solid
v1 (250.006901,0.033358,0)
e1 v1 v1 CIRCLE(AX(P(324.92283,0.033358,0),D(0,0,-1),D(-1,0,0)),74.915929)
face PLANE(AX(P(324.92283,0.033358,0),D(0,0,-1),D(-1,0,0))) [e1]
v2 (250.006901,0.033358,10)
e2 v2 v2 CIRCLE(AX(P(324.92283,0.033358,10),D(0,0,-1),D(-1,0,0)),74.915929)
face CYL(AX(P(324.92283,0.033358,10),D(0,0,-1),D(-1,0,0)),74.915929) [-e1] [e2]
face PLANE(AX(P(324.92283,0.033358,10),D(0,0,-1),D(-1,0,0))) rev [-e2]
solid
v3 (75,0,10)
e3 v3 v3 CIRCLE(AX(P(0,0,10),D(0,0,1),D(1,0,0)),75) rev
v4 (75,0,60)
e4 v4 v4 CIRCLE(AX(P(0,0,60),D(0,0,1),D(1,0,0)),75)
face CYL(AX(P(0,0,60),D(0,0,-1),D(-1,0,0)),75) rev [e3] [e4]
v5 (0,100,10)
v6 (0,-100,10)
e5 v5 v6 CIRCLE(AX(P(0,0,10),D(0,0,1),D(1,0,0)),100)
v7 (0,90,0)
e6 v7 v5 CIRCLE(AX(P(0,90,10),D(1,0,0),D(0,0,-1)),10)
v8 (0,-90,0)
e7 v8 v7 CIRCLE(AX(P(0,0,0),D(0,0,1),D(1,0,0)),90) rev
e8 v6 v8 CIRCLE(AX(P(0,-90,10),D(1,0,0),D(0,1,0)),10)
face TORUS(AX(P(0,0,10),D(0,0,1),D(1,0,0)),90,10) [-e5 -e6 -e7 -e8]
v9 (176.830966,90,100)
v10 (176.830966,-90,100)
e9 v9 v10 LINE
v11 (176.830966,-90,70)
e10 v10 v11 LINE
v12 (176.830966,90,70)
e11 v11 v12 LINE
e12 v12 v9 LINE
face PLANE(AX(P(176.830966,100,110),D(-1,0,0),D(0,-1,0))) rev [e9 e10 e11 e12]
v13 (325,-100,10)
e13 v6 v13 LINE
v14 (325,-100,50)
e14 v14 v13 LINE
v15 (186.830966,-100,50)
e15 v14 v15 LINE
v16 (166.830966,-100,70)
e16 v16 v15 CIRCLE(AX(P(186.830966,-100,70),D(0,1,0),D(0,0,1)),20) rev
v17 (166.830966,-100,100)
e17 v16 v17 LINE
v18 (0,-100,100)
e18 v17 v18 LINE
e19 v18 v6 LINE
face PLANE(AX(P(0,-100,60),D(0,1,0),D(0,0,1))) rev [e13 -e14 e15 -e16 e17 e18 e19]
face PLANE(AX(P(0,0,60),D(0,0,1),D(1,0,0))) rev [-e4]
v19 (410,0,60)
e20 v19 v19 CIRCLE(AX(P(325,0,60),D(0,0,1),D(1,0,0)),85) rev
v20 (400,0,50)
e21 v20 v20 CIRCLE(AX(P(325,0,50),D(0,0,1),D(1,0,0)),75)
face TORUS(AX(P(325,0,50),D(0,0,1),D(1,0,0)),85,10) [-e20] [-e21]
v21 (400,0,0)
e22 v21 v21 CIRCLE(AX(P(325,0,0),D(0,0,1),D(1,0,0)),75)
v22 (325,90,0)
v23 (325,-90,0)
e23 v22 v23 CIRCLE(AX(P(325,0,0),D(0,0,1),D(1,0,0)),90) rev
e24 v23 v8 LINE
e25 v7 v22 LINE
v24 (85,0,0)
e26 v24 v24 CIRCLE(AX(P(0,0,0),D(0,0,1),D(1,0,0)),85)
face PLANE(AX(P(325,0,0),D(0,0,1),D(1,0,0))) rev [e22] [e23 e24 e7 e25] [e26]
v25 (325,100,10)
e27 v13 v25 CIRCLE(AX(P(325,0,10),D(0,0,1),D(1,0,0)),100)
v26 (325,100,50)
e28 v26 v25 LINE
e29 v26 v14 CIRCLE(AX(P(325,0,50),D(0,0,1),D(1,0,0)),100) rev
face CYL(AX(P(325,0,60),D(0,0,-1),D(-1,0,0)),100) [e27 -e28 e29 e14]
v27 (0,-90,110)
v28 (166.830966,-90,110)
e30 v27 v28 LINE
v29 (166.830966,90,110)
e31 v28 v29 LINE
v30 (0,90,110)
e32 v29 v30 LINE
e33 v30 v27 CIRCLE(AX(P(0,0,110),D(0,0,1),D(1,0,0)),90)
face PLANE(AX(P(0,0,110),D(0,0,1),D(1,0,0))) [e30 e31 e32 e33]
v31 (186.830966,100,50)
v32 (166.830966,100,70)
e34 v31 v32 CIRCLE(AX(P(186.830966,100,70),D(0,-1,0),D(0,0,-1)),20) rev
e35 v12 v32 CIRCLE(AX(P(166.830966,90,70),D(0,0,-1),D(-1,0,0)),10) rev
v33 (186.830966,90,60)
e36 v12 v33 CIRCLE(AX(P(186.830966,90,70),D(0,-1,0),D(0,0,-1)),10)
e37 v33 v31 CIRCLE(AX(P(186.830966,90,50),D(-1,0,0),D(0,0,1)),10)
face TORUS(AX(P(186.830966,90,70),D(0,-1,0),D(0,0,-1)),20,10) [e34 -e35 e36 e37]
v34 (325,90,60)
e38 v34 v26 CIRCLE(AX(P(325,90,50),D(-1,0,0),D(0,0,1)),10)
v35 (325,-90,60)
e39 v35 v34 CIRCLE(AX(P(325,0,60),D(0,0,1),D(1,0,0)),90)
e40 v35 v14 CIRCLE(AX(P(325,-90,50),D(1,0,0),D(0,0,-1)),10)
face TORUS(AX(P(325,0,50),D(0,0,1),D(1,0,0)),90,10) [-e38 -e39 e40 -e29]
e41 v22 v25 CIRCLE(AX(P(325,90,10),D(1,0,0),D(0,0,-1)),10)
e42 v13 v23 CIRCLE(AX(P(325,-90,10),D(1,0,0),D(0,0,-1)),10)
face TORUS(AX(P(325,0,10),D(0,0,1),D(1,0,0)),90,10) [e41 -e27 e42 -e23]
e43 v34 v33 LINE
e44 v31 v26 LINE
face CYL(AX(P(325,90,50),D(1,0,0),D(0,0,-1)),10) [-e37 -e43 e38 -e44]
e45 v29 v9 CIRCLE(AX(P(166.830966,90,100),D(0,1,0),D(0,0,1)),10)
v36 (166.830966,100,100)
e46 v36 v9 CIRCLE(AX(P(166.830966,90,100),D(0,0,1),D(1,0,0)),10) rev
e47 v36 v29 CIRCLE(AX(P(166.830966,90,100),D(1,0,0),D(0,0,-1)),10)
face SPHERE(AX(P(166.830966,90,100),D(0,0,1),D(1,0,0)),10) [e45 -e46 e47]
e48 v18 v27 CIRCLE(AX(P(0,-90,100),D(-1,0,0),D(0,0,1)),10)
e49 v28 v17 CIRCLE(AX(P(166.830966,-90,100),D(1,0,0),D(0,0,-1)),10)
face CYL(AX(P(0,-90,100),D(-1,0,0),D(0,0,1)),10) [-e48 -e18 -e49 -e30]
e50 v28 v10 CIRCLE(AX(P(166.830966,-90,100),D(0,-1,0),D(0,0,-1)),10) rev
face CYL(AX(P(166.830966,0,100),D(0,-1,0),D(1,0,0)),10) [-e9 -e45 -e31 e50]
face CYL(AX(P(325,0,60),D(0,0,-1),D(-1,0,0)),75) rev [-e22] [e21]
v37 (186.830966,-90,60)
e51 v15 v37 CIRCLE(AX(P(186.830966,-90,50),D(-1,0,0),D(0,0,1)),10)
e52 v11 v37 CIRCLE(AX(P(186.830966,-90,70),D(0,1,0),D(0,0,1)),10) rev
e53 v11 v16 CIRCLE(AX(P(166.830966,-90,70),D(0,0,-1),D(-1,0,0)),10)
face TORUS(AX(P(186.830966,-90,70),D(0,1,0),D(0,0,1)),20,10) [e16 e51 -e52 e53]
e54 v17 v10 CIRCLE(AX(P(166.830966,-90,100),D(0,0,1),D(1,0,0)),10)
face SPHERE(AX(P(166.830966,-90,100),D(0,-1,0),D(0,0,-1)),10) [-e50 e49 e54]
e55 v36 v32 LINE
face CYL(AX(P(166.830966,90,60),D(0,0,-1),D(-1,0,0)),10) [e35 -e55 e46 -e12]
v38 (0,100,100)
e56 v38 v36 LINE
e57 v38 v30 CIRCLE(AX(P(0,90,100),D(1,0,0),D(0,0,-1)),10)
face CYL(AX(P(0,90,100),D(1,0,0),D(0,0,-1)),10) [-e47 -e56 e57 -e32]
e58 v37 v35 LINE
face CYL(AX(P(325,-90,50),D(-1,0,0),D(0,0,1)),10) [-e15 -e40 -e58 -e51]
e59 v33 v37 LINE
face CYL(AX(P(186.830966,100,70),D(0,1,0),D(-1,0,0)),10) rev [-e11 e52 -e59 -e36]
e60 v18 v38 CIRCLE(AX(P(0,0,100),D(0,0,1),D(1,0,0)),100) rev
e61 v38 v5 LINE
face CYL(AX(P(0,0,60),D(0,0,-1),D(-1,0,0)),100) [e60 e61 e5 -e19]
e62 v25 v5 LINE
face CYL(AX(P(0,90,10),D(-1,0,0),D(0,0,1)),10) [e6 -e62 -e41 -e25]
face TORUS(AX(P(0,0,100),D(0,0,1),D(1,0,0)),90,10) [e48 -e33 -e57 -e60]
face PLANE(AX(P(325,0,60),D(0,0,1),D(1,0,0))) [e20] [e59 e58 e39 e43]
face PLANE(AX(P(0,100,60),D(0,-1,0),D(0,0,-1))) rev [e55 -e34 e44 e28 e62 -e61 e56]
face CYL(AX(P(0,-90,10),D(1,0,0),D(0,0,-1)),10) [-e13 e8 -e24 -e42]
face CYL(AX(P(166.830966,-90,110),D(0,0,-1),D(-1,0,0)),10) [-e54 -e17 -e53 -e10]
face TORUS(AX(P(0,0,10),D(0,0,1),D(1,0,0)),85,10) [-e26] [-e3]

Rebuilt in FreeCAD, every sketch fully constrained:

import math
import FreeCAD as App
import Part
import Sketcher
Q = App.Units.Quantity


def edges_at(feature, points):
    """Names of the edges that pass closest to the given points."""
    edges = feature.Shape.Edges
    near = lambda p: min(range(len(edges)), key=lambda i: edges[i].distToShape(Part.Vertex(*p))[0])
    return sorted({f"Edge{near(p) + 1}" for p in points})

doc = App.newDocument("Part")
body = doc.addObject("PartDesign::Body", "Body")

# Sketch on XY plane
sketch1 = body.newObject("Sketcher::SketchObject", "Sketch")
sketch1.AttachmentSupport = (doc.getObject("XY_Plane"), [""])
sketch1.MapMode = "FlatFace"
sketch1.addGeometry([
    Part.LineSegment(App.Vector(325, 100, 0), App.Vector(0, 100, 0)),  # 0
    Part.ArcOfCircle(Part.Circle(App.Vector(0, 0, 0), App.Vector(0, 0, 1), 100), math.radians(90), math.radians(270)),  # 1
    Part.LineSegment(App.Vector(0, -100, 0), App.Vector(325, -100, 0)),  # 2
    Part.ArcOfCircle(Part.Circle(App.Vector(325, 0, 0), App.Vector(0, 0, 1), 100), math.radians(-90), math.radians(90)),  # 3
    Part.Circle(App.Vector(325, 0, 0), App.Vector(0, 0, 1), 75),  # 4
    Part.Circle(App.Vector(0, 0, 0), App.Vector(0, 0, 1), 75),  # 5
], False)
sketch1.addConstraint([
    Sketcher.Constraint("Tangent", 0, 2, 1, 1),
    Sketcher.Constraint("Tangent", 1, 2, 2, 1),
    Sketcher.Constraint("Tangent", 2, 2, 3, 1),
    Sketcher.Constraint("Tangent", 3, 2, 0, 1),
    Sketcher.Constraint("Horizontal", 0),
    Sketcher.Constraint("Horizontal", 2),
    Sketcher.Constraint("Coincident", 1, 3, -1, 1),
    Sketcher.Constraint("Coincident", 5, 3, -1, 1),
    Sketcher.Constraint("Coincident", 4, 3, 3, 3),
    Sketcher.Constraint("Equal", 4, 5),
    Sketcher.Constraint("Diameter", 4, Q("150 mm")),
    Sketcher.Constraint("Radius", 1, Q("100 mm")),
    Sketcher.Constraint("DistanceX", 0, 2, 0, 1, Q("325 mm")),
])
pad1 = body.newObject("PartDesign::Pad", "Pad")
pad1.Profile = sketch1
pad1.Length = 60

# Sketch on XY plane
sketch2 = body.newObject("Sketcher::SketchObject", "Sketch001")
sketch2.AttachmentSupport = (doc.getObject("XY_Plane"), [""])
sketch2.MapMode = "FlatFace"
sketch2.AttachmentOffset = App.Placement(App.Vector(0, 0, 60), App.Rotation())
sketch2.addGeometry([
    Part.LineSegment(App.Vector(177, 100, 0), App.Vector(0, 100, 0)),
    Part.ArcOfCircle(Part.Circle(App.Vector(0, 0, 0), App.Vector(0, 0, 1), 100), math.radians(90), math.radians(270)),
    Part.LineSegment(App.Vector(0, -100, 0), App.Vector(177, -100, 0)),
    Part.LineSegment(App.Vector(177, -100, 0), App.Vector(177, 100, 0)),
], False)
sketch2.addConstraint([
    Sketcher.Constraint("Tangent", 0, 2, 1, 1),
    Sketcher.Constraint("Tangent", 1, 2, 2, 1),
    Sketcher.Constraint("Coincident", 2, 2, 3, 1),
    Sketcher.Constraint("Coincident", 3, 2, 0, 1),
    Sketcher.Constraint("Horizontal", 0),
    Sketcher.Constraint("Horizontal", 2),
    Sketcher.Constraint("Vertical", 3),
    Sketcher.Constraint("Coincident", 1, 3, -1, 1),
    Sketcher.Constraint("Radius", 1, Q("100 mm")),
    Sketcher.Constraint("DistanceX", 0, 2, 0, 1, Q("176.830966 mm")),
])
pad2 = body.newObject("PartDesign::Pad", "Pad001")
pad2.Profile = sketch2
pad2.Length = 50
doc.recompute()

fillet = body.newObject("PartDesign::Fillet", "Fillet")
fillet.Base = (pad2, edges_at(pad2, [
    (-75, 0, 0),
    (250, 0, 60),
    (250.915, -100, 60),
    (176.831, 0, 60),
    (176.831, -100, 85),
    (176.831, 100, 85),
    (-100, 0, 110),
    (88.415, -100, 110),
    (176.831, 0, 110),
    (88.415, 100, 110),
    (425, 0, 60),
    (162.5, -100, 0),
    (-100, 0, 0),
    (162.5, 100, 0),
    (425, 0, 0),
    (250.915, 100, 60),
]))
fillet.Radius = 10
body2 = doc.addObject("PartDesign::Body", "Body001")

# Sketch on XY plane
sketch3 = body2.newObject("Sketcher::SketchObject", "Sketch002")
sketch3.AttachmentSupport = (doc.getObject("XY_Plane001"), [""])
sketch3.MapMode = "FlatFace"
sketch3.addGeometry(Part.Circle(App.Vector(325, 0, 0), App.Vector(0, 0, 1), 75), False)
sketch3.addConstraint([
    Sketcher.Constraint("Diameter", 0, Q("149.831858 mm")),
    Sketcher.Constraint("DistanceX", -1, 1, 0, 3, Q("324.92283 mm")),
    Sketcher.Constraint("DistanceY", -1, 1, 0, 3, Q("0.033358 mm")),
])
pad3 = body2.newObject("PartDesign::Pad", "Pad002")
pad3.Profile = sketch3
pad3.Length = 10

doc.recompute()
